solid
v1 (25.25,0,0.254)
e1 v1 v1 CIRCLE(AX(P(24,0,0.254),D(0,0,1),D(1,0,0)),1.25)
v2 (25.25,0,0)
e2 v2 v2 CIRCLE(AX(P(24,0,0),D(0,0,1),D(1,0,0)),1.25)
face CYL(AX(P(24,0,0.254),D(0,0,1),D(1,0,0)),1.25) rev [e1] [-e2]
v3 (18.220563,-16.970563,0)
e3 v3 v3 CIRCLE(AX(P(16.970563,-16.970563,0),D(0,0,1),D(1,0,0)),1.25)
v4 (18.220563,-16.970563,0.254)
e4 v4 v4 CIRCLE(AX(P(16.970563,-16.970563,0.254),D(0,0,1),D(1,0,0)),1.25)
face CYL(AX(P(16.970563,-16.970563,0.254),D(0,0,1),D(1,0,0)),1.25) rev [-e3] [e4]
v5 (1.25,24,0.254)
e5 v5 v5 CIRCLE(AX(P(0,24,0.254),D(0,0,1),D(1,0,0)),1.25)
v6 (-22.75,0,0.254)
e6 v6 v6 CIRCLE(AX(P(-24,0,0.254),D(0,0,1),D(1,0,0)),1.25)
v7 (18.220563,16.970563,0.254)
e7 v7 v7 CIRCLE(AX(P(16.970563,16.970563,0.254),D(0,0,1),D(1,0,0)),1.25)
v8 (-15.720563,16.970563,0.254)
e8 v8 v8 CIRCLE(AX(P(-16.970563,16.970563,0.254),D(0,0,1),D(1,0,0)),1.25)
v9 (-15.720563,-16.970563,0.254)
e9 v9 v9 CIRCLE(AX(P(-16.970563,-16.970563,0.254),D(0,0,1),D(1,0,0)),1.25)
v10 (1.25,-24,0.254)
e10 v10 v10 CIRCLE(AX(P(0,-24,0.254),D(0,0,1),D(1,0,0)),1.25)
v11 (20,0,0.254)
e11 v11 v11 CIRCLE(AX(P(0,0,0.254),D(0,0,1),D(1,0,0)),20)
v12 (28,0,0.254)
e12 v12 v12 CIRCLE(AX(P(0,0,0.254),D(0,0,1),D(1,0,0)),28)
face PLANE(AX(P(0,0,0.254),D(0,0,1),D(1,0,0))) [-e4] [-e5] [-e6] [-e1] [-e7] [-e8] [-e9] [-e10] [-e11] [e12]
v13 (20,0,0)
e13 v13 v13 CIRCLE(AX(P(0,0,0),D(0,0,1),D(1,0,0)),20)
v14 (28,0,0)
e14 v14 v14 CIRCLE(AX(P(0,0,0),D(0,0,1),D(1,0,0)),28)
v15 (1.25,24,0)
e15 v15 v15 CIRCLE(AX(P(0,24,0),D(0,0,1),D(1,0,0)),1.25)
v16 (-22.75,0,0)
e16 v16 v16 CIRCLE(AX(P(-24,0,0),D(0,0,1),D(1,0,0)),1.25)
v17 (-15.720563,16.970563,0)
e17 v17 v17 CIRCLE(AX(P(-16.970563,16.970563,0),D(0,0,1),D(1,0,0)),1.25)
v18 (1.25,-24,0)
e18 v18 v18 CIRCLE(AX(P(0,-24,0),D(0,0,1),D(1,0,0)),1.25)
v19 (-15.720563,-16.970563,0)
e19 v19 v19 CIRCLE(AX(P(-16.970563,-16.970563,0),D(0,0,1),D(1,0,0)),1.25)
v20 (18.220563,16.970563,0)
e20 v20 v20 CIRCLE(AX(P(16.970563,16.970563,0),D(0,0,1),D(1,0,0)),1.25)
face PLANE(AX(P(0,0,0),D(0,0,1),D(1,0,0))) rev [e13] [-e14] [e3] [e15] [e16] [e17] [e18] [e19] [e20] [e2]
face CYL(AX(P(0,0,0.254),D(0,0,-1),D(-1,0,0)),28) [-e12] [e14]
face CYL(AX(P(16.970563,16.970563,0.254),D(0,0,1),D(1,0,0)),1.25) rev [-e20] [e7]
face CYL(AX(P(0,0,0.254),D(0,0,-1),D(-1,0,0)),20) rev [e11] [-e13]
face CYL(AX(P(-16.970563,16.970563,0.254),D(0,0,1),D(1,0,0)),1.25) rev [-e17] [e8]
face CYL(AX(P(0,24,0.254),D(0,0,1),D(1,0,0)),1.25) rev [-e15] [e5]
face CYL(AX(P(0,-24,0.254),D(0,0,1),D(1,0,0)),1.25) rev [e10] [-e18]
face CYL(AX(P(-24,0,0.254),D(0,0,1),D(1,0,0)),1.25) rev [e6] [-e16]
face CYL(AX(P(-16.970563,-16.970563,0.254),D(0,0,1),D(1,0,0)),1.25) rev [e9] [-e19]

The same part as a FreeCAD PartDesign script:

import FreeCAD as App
import Part
import Sketcher
from FreeCAD import Vector
Q = App.Units.Quantity


def add_polygon(sketch, points):
    """Adds a closed chain of lines whose ends are joined by coincident constraints."""
    first, n = sketch.GeometryCount, len(points)
    for a, b in zip(points, points[1:] + points[:1]):
        sketch.addGeometry(Part.LineSegment(App.Vector(*a, 0), App.Vector(*b, 0)), False)
    for i in range(n):
        sketch.addConstraint(Sketcher.Constraint("Coincident", first + i, 2, first + (i + 1) % n, 1))

doc = App.newDocument("Part")
body = doc.addObject("PartDesign::Body", "Body")

# Sketch on XY plane
sketch1 = doc.addObject("Sketcher::SketchObject", "Sketch")
body.addObject(sketch1)
sketch1.AttachmentSupport = (doc.XY_Plane, [""])
sketch1.MapMode = "FlatFace"
sketch1.addGeometry([
    Part.Circle(Vector(0, 0, 0), Vector(0, 0, 1), 28),
    Part.Circle(Vector(0, 0, 0), Vector(0, 0, 1), 20),
], False)
sketch1.addConstraint([
    Sketcher.Constraint("Coincident", 0, 3, -1, 1),
    Sketcher.Constraint("Coincident", 1, 3, -1, 1),
    Sketcher.Constraint("Diameter", 0, 56.0),
    Sketcher.Constraint("Diameter", 1, 40.0),
])
pad1 = doc.addObject("PartDesign::Pad", "Pad")
body.addObject(pad1)
pad1.Profile = sketch1
pad1.Length = 0.254

# Sketch on YZ plane
sketch2 = doc.addObject("Sketcher::SketchObject", "Sketch001")
body.addObject(sketch2)
sketch2.AttachmentSupport = (doc.YZ_Plane, [""])
sketch2.MapMode = "FlatFace"
add_polygon(sketch2, [(24, -2), (24, 0.3), (22.8, 0.3), (22.8, -1.2)])  # lines 0-3
sketch2.addGeometry(Part.LineSegment(Vector(24, 0.3, 0), Vector(24, -2, 0)), True)  # axis
sketch2.addConstraint([
    Sketcher.Constraint("Vertical", 0),
    Sketcher.Constraint("Horizontal", 1),
    Sketcher.Constraint("Vertical", 2),
    Sketcher.Constraint("Vertical", 4),
    Sketcher.Constraint("Coincident", 4, 1, 0, 2),
    Sketcher.Constraint("Equal", 0, 4),
    Sketcher.Constraint("Angle", 3, Q("-31 deg")),
    Sketcher.Constraint("DistanceY", 2, 2, 2, 1, 1.5),
    Sketcher.Constraint("DistanceX", -1, 1, 0, 2, 24.0),
    Sketcher.Constraint("DistanceX", 1, 2, 1, 1, 1.25),
    Sketcher.Constraint("DistanceY", -1, 1, 0, 2, 0.254),
])
groove = doc.addObject("PartDesign::Groove", "Groove")
body.addObject(groove)
groove.Profile = sketch2
groove.ReferenceAxis = (sketch2, ["Axis0"])
groove.Angle = 360
doc.recompute()

polarpattern = doc.addObject("PartDesign::PolarPattern", "PolarPattern")
body.addObject(polarpattern)
polarpattern.Originals = [groove]
polarpattern.Axis = (doc.Z_Axis, [""])
polarpattern.Angle = 360
polarpattern.Occurrences = 8
body.Tip = polarpattern

doc.recompute()
